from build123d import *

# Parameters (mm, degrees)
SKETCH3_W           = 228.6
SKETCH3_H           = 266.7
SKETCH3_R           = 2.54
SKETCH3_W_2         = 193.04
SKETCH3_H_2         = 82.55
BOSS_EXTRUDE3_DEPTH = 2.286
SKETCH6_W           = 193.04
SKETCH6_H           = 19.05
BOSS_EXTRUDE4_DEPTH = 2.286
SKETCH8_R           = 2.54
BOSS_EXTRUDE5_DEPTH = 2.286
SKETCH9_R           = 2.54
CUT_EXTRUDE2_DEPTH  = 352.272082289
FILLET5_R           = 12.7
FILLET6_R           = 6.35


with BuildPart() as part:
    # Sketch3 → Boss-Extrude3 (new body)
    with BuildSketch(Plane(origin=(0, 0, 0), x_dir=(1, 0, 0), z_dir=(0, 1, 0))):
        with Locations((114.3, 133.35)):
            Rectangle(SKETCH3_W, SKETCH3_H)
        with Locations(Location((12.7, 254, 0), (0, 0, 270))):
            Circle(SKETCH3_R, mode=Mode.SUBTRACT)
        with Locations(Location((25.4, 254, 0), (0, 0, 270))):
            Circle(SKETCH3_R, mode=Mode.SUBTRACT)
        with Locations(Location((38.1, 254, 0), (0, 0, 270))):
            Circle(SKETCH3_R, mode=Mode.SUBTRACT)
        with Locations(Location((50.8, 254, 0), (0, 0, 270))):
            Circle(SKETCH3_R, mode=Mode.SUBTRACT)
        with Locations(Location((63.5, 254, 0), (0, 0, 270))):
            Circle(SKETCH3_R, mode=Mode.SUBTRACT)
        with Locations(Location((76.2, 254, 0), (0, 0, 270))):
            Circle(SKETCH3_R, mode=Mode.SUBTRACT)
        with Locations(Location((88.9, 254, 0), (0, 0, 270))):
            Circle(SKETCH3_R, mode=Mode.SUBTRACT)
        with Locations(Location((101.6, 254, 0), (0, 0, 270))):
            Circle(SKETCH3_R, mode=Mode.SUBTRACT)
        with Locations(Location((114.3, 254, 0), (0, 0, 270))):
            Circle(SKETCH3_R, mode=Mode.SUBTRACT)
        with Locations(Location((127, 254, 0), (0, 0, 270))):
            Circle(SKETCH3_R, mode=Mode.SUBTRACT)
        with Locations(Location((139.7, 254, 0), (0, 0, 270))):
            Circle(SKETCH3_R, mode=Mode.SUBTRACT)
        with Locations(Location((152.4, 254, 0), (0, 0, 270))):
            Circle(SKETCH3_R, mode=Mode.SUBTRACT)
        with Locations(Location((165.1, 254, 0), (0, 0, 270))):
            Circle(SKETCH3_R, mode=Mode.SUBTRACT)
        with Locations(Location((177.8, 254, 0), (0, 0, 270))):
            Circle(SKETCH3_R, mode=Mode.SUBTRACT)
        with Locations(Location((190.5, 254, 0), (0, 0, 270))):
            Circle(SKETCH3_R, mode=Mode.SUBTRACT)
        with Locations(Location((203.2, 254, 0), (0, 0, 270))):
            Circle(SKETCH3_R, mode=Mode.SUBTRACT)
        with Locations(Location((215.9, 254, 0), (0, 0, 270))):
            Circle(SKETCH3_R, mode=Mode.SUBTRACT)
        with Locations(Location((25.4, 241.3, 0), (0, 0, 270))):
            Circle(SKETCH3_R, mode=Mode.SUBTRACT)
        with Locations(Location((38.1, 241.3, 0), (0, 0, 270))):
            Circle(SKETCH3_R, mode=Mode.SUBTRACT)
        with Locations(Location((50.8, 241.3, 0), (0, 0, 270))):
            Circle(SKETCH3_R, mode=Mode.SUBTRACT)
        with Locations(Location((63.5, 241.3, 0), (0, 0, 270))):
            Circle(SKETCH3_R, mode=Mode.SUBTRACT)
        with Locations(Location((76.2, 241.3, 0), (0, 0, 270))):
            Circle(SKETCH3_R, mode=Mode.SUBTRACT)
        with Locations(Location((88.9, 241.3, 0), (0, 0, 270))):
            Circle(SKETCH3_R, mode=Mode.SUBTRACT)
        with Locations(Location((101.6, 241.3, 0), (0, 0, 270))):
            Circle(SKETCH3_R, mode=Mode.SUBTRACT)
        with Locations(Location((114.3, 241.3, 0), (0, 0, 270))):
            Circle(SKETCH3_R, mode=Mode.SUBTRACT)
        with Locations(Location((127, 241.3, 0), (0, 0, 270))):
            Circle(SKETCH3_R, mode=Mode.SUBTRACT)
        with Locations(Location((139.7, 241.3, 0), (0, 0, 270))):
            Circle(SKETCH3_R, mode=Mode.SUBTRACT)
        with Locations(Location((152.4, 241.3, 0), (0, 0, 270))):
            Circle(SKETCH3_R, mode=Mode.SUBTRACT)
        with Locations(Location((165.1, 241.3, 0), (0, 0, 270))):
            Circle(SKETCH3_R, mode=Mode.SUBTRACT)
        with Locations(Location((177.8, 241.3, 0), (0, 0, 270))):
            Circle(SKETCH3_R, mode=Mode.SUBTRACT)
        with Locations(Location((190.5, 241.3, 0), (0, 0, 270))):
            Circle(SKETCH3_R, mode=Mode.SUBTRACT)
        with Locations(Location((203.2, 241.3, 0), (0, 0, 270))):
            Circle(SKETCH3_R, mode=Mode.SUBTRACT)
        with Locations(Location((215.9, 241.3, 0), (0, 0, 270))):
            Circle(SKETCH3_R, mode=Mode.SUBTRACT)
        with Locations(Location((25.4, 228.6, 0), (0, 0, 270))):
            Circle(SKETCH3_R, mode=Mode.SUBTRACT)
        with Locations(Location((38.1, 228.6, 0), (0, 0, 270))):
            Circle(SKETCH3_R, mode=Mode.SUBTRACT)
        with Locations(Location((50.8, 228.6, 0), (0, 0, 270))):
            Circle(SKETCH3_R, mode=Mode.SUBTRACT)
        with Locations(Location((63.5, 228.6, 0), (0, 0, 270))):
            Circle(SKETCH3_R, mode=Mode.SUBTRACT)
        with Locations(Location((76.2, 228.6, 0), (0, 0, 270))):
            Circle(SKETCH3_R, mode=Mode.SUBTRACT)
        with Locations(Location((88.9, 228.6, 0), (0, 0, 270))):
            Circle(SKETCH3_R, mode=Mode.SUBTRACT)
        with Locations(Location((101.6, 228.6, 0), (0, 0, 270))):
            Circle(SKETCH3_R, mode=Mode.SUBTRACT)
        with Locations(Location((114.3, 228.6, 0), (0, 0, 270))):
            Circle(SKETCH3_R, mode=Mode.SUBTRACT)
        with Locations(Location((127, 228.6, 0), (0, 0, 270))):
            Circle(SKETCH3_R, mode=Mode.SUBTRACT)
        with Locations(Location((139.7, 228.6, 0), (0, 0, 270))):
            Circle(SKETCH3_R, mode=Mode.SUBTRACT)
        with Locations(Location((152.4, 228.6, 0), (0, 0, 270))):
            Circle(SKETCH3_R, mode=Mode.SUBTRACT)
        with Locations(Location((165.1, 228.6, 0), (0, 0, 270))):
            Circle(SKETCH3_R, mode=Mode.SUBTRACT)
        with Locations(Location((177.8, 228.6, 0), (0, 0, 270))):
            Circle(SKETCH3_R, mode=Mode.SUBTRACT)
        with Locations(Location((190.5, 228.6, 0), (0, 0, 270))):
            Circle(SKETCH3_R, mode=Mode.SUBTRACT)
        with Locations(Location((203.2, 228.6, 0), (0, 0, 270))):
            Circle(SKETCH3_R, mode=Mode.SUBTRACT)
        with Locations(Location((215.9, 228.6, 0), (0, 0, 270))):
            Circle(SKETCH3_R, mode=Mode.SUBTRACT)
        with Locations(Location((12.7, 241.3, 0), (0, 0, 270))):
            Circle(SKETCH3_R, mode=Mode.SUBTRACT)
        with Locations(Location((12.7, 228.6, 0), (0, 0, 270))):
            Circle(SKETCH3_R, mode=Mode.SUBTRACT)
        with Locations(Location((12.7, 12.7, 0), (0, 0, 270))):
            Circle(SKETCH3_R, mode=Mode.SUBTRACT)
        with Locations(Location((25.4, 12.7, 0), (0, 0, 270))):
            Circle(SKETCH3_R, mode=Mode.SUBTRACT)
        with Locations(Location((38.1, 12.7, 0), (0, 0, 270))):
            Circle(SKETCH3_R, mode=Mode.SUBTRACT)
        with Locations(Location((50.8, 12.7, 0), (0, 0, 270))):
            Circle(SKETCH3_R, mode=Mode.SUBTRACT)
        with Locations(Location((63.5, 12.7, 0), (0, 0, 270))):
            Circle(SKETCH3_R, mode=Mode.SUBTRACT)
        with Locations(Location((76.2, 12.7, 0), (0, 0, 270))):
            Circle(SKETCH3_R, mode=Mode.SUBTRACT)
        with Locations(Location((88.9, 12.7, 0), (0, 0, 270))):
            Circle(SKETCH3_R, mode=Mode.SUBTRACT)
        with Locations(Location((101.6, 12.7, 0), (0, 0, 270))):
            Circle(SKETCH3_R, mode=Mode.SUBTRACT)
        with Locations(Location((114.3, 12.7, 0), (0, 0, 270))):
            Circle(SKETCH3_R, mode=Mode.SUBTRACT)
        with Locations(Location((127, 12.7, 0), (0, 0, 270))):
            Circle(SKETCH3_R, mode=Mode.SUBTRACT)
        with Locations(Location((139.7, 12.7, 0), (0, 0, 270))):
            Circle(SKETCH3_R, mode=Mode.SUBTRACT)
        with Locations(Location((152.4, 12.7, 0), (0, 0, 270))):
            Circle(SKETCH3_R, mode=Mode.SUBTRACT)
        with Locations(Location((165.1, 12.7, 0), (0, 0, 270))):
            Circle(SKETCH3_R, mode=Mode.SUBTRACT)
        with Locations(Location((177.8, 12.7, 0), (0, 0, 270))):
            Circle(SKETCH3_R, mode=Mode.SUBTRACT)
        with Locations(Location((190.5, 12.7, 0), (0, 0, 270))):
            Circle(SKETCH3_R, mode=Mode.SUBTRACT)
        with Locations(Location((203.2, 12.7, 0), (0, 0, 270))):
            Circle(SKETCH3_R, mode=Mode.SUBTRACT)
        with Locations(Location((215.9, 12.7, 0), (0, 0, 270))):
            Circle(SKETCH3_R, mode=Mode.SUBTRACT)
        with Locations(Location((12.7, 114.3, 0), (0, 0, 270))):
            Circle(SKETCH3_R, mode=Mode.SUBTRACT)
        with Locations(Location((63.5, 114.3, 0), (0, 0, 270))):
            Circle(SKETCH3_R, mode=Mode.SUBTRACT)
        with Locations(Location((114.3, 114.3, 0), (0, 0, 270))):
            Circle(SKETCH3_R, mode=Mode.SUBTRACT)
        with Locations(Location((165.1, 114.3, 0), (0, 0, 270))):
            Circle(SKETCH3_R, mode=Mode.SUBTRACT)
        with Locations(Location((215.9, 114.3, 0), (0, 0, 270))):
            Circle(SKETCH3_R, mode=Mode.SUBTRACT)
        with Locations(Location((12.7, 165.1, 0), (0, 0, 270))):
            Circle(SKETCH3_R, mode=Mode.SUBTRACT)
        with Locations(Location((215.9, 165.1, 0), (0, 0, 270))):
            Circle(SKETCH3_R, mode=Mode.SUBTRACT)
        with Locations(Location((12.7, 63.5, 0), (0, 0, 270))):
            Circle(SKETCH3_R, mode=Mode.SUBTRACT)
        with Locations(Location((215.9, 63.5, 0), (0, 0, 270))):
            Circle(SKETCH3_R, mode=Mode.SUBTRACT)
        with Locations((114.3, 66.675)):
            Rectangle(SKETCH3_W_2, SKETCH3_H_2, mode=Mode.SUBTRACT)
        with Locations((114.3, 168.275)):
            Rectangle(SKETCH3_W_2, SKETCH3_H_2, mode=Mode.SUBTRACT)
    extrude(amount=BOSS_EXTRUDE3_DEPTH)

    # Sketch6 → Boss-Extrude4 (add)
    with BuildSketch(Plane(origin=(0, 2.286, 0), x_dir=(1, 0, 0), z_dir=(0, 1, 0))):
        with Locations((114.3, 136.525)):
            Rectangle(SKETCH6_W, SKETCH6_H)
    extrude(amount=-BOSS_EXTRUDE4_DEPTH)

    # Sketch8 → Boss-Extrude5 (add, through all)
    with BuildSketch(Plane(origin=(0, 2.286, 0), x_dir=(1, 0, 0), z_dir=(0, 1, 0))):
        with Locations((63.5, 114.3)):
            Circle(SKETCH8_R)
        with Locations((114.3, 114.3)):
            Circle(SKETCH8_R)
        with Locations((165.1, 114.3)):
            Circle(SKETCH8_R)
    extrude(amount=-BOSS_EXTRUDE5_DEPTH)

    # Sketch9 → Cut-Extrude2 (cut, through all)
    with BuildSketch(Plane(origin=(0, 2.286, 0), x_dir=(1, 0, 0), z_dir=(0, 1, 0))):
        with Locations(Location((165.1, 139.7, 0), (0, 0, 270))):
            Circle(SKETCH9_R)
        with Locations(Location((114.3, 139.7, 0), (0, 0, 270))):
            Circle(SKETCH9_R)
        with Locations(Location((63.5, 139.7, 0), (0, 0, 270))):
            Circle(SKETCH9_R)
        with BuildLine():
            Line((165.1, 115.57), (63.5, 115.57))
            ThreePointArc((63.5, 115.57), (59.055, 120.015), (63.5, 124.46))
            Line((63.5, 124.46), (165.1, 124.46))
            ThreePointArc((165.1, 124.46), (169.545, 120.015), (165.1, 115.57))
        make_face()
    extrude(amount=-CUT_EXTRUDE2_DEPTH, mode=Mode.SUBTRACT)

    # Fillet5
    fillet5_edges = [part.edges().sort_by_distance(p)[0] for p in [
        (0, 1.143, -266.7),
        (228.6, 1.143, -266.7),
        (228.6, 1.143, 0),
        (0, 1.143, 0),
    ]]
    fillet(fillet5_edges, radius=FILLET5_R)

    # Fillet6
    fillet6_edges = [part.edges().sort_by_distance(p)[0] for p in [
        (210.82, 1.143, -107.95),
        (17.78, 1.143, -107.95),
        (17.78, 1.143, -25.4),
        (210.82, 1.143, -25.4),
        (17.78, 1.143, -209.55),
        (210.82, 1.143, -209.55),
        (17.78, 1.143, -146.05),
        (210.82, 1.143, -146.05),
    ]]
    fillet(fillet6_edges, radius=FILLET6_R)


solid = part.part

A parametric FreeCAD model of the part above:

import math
import FreeCAD as App
import Part
import Sketcher

V = App.Vector
Q = App.Units.Quantity


def edges_at(feature, points):
    """Names of the edges that pass closest to the given points."""
    edges = feature.Shape.Edges
    near = lambda p: min(range(len(edges)), key=lambda i: edges[i].distToShape(Part.Vertex(*p))[0])
    return sorted({f"Edge{near(p) + 1}" for p in points})


def add_polygon(sketch, points):
    """Adds a closed chain of lines whose ends are joined by coincident constraints."""
    first, n = sketch.GeometryCount, len(points)
    for a, b in zip(points, points[1:] + points[:1]):
        sketch.addGeometry(Part.LineSegment(App.Vector(*a, 0), App.Vector(*b, 0)), False)
    for i in range(n):
        sketch.addConstraint(Sketcher.Constraint("Coincident", first + i, 2, first + (i + 1) % n, 1))

doc = App.newDocument("Part")
params = doc.addObject("Spreadsheet::Sheet", "Params")
for row, (alias, value) in enumerate([
    ("sketch1_diameter", "0.2 in"),
    ("sketch1_width", "9 in"),
    ("sketch1_width2", "7.6 in"),
    ("sketch1_height", "10.5 in"),
    ("sketch1_height2", "3.25 in"),
    ("pad1_length", "0.09 in"),
    ("sketch2_width", "7.6 in"),
    ("sketch2_height", "0.75 in"),
    ("pad2_length", "0.09 in"),
    ("sketch3_diameter", "0.2 in"),
    ("pad3_length", "0.09 in"),
    ("sketch4_diameter", "0.2 in"),
    ("sketch4_width", "4 in"),
    ("sketch4_radius", "0.175 in"),
    ("fillet_radius", "0.5 in"),
    ("fillet2_radius", "0.25 in"),
], start=1):
    params.set(f"A{row}", alias)
    params.set(f"B{row}", "=" + value)
    params.setAlias(f"B{row}", alias)

body = doc.addObject("PartDesign::Body", "Body")

# Sketch on XZ plane
sketch1 = body.newObject("Sketcher::SketchObject", "Sketch")
sketch1.AttachmentSupport = (doc.getObject("XZ_Plane"), [""])
sketch1.MapMode = "FlatFace"
add_polygon(sketch1, [(0, -266.7), (0, 0), (228.6, 0), (228.6, -266.7)])  # lines 0-3
sketch1.addGeometry(Part.Circle(V(12.7, -12.7, 0), V(0, 0, 1), 2.54), False)  # 4
sketch1.addGeometry(Part.Circle(V(25.4, -12.7, 0), V(0, 0, 1), 2.54), False)  # 5
sketch1.addGeometry(Part.Circle(V(38.1, -12.7, 0), V(0, 0, 1), 2.54), False)  # 6
sketch1.addGeometry(Part.Circle(V(50.8, -12.7, 0), V(0, 0, 1), 2.54), False)  # 7
sketch1.addGeometry(Part.Circle(V(12.7, -63.5, 0), V(0, 0, 1), 2.54), False)  # 8
sketch1.addGeometry(Part.Circle(V(63.5, -12.7, 0), V(0, 0, 1), 2.54), False)  # 9
sketch1.addGeometry(Part.Circle(V(76.2, -12.7, 0), V(0, 0, 1), 2.54), False)  # 10
sketch1.addGeometry(Part.Circle(V(88.9, -12.7, 0), V(0, 0, 1), 2.54), False)  # 11
sketch1.addGeometry(Part.Circle(V(101.6, -12.7, 0), V(0, 0, 1), 2.54), False)  # 12
sketch1.addGeometry(Part.Circle(V(114.3, -12.7, 0), V(0, 0, 1), 2.54), False)  # 13
add_polygon(sketch1, [(210.82, -25.4), (17.78, -25.4), (17.78, -107.95), (210.82, -107.95)])  # lines 14-17
sketch1.addGeometry(Part.Circle(V(12.7, -114.3, 0), V(0, 0, 1), 2.54), False)  # 18
sketch1.addGeometry(Part.Circle(V(63.5, -114.3, 0), V(0, 0, 1), 2.54), False)  # 19
sketch1.addGeometry(Part.Circle(V(114.3, -114.3, 0), V(0, 0, 1), 2.54), False)  # 20
sketch1.addGeometry(Part.Circle(V(127, -12.7, 0), V(0, 0, 1), 2.54), False)  # 21
sketch1.addGeometry(Part.Circle(V(139.7, -12.7, 0), V(0, 0, 1), 2.54), False)  # 22
sketch1.addGeometry(Part.Circle(V(152.4, -12.7, 0), V(0, 0, 1), 2.54), False)  # 23
sketch1.addGeometry(Part.Circle(V(165.1, -12.7, 0), V(0, 0, 1), 2.54), False)  # 24
sketch1.addGeometry(Part.Circle(V(177.8, -12.7, 0), V(0, 0, 1), 2.54), False)  # 25
sketch1.addGeometry(Part.Circle(V(190.5, -12.7, 0), V(0, 0, 1), 2.54), False)  # 26
sketch1.addGeometry(Part.Circle(V(203.2, -12.7, 0), V(0, 0, 1), 2.54), False)  # 27
sketch1.addGeometry(Part.Circle(V(215.9, -12.7, 0), V(0, 0, 1), 2.54), False)  # 28
sketch1.addGeometry(Part.Circle(V(215.9, -63.5, 0), V(0, 0, 1), 2.54), False)  # 29
sketch1.addGeometry(Part.Circle(V(165.1, -114.3, 0), V(0, 0, 1), 2.54), False)  # 30
sketch1.addGeometry(Part.Circle(V(215.9, -114.3, 0), V(0, 0, 1), 2.54), False)  # 31
sketch1.addGeometry(Part.Circle(V(12.7, -165.1, 0), V(0, 0, 1), 2.54), False)  # 32
add_polygon(sketch1, [(210.82, -127), (17.78, -127), (17.78, -209.55), (210.82, -209.55)])  # lines 33-36
sketch1.addGeometry(Part.Circle(V(12.7, -228.6, 0), V(0, 0, 1), 2.54), False)  # 37
sketch1.addGeometry(Part.Circle(V(25.4, -228.6, 0), V(0, 0, 1), 2.54), False)  # 38
sketch1.addGeometry(Part.Circle(V(12.7, -241.3, 0), V(0, 0, 1), 2.54), False)  # 39
sketch1.addGeometry(Part.Circle(V(12.7, -254, 0), V(0, 0, 1), 2.54), False)  # 40
sketch1.addGeometry(Part.Circle(V(25.4, -241.3, 0), V(0, 0, 1), 2.54), False)  # 41
sketch1.addGeometry(Part.Circle(V(25.4, -254, 0), V(0, 0, 1), 2.54), False)  # 42
sketch1.addGeometry(Part.Circle(V(38.1, -228.6, 0), V(0, 0, 1), 2.54), False)  # 43
sketch1.addGeometry(Part.Circle(V(50.8, -228.6, 0), V(0, 0, 1), 2.54), False)  # 44
sketch1.addGeometry(Part.Circle(V(38.1, -241.3, 0), V(0, 0, 1), 2.54), False)  # 45
sketch1.addGeometry(Part.Circle(V(38.1, -254, 0), V(0, 0, 1), 2.54), False)  # 46
sketch1.addGeometry(Part.Circle(V(50.8, -241.3, 0), V(0, 0, 1), 2.54), False)  # 47
sketch1.addGeometry(Part.Circle(V(50.8, -254, 0), V(0, 0, 1), 2.54), False)  # 48
sketch1.addGeometry(Part.Circle(V(63.5, -228.6, 0), V(0, 0, 1), 2.54), False)  # 49
sketch1.addGeometry(Part.Circle(V(76.2, -228.6, 0), V(0, 0, 1), 2.54), False)  # 50
sketch1.addGeometry(Part.Circle(V(63.5, -241.3, 0), V(0, 0, 1), 2.54), False)  # 51
sketch1.addGeometry(Part.Circle(V(63.5, -254, 0), V(0, 0, 1), 2.54), False)  # 52
sketch1.addGeometry(Part.Circle(V(76.2, -241.3, 0), V(0, 0, 1), 2.54), False)  # 53
sketch1.addGeometry(Part.Circle(V(76.2, -254, 0), V(0, 0, 1), 2.54), False)  # 54
sketch1.addGeometry(Part.Circle(V(88.9, -228.6, 0), V(0, 0, 1), 2.54), False)  # 55
sketch1.addGeometry(Part.Circle(V(101.6, -228.6, 0), V(0, 0, 1), 2.54), False)  # 56
sketch1.addGeometry(Part.Circle(V(114.3, -228.6, 0), V(0, 0, 1), 2.54), False)  # 57
sketch1.addGeometry(Part.Circle(V(88.9, -241.3, 0), V(0, 0, 1), 2.54), False)  # 58
sketch1.addGeometry(Part.Circle(V(88.9, -254, 0), V(0, 0, 1), 2.54), False)  # 59
sketch1.addGeometry(Part.Circle(V(101.6, -241.3, 0), V(0, 0, 1), 2.54), False)  # 60
sketch1.addGeometry(Part.Circle(V(114.3, -241.3, 0), V(0, 0, 1), 2.54), False)  # 61
sketch1.addGeometry(Part.Circle(V(101.6, -254, 0), V(0, 0, 1), 2.54), False)  # 62
sketch1.addGeometry(Part.Circle(V(114.3, -254, 0), V(0, 0, 1), 2.54), False)  # 63
sketch1.addGeometry(Part.Circle(V(215.9, -165.1, 0), V(0, 0, 1), 2.54), False)  # 64
sketch1.addGeometry(Part.Circle(V(127, -228.6, 0), V(0, 0, 1), 2.54), False)  # 65
sketch1.addGeometry(Part.Circle(V(139.7, -228.6, 0), V(0, 0, 1), 2.54), False)  # 66
sketch1.addGeometry(Part.Circle(V(127, -241.3, 0), V(0, 0, 1), 2.54), False)  # 67
sketch1.addGeometry(Part.Circle(V(127, -254, 0), V(0, 0, 1), 2.54), False)  # 68
sketch1.addGeometry(Part.Circle(V(139.7, -241.3, 0), V(0, 0, 1), 2.54), False)  # 69
sketch1.addGeometry(Part.Circle(V(139.7, -254, 0), V(0, 0, 1), 2.54), False)  # 70
sketch1.addGeometry(Part.Circle(V(152.4, -228.6, 0), V(0, 0, 1), 2.54), False)  # 71
sketch1.addGeometry(Part.Circle(V(165.1, -228.6, 0), V(0, 0, 1), 2.54), False)  # 72
sketch1.addGeometry(Part.Circle(V(152.4, -241.3, 0), V(0, 0, 1), 2.54), False)  # 73
sketch1.addGeometry(Part.Circle(V(152.4, -254, 0), V(0, 0, 1), 2.54), False)  # 74
sketch1.addGeometry(Part.Circle(V(165.1, -241.3, 0), V(0, 0, 1), 2.54), False)  # 75
sketch1.addGeometry(Part.Circle(V(165.1, -254, 0), V(0, 0, 1), 2.54), False)  # 76
sketch1.addGeometry(Part.Circle(V(177.8, -228.6, 0), V(0, 0, 1), 2.54), False)  # 77
sketch1.addGeometry(Part.Circle(V(190.5, -228.6, 0), V(0, 0, 1), 2.54), False)  # 78
sketch1.addGeometry(Part.Circle(V(177.8, -241.3, 0), V(0, 0, 1), 2.54), False)  # 79
sketch1.addGeometry(Part.Circle(V(177.8, -254, 0), V(0, 0, 1), 2.54), False)  # 80
sketch1.addGeometry(Part.Circle(V(190.5, -241.3, 0), V(0, 0, 1), 2.54), False)  # 81
sketch1.addGeometry(Part.Circle(V(190.5, -254, 0), V(0, 0, 1), 2.54), False)  # 82
sketch1.addGeometry(Part.Circle(V(203.2, -228.6, 0), V(0, 0, 1), 2.54), False)  # 83
sketch1.addGeometry(Part.Circle(V(215.9, -228.6, 0), V(0, 0, 1), 2.54), False)  # 84
sketch1.addGeometry(Part.Circle(V(203.2, -241.3, 0), V(0, 0, 1), 2.54), False)  # 85
sketch1.addGeometry(Part.Circle(V(203.2, -254, 0), V(0, 0, 1), 2.54), False)  # 86
sketch1.addGeometry(Part.Circle(V(215.9, -241.3, 0), V(0, 0, 1), 2.54), False)  # 87
sketch1.addGeometry(Part.Circle(V(215.9, -254, 0), V(0, 0, 1), 2.54), False)  # 88
sketch1.addConstraint(Sketcher.Constraint("Vertical", 0))
sketch1.addConstraint(Sketcher.Constraint("Horizontal", 1))
sketch1.addConstraint(Sketcher.Constraint("Vertical", 2))
sketch1.addConstraint(Sketcher.Constraint("Horizontal", 3))
sketch1.addConstraint(Sketcher.Constraint("Horizontal", 14))
sketch1.addConstraint(Sketcher.Constraint("Vertical", 15))
sketch1.addConstraint(Sketcher.Constraint("Horizontal", 16))
sketch1.addConstraint(Sketcher.Constraint("Vertical", 17))
sketch1.addConstraint(Sketcher.Constraint("Horizontal", 33))
sketch1.addConstraint(Sketcher.Constraint("Vertical", 34))
sketch1.addConstraint(Sketcher.Constraint("Horizontal", 35))
sketch1.addConstraint(Sketcher.Constraint("Vertical", 36))
sketch1.addConstraint(Sketcher.Constraint("Coincident", 0, 2, -1, 1))
sketch1.addConstraint(Sketcher.Constraint("Equal", 4, 5))
sketch1.addConstraint(Sketcher.Constraint("Equal", 5, 6))
sketch1.addConstraint(Sketcher.Constraint("Equal", 6, 7))
sketch1.addConstraint(Sketcher.Constraint("Equal", 7, 8))
sketch1.addConstraint(Sketcher.Constraint("Equal", 8, 9))
sketch1.addConstraint(Sketcher.Constraint("Equal", 9, 10))
sketch1.addConstraint(Sketcher.Constraint("Equal", 10, 11))
sketch1.addConstraint(Sketcher.Constraint("Equal", 11, 12))
sketch1.addConstraint(Sketcher.Constraint("Equal", 12, 13))
sketch1.addConstraint(Sketcher.Constraint("Equal", 13, 18))
sketch1.addConstraint(Sketcher.Constraint("Equal", 18, 19))
sketch1.addConstraint(Sketcher.Constraint("Equal", 19, 20))
sketch1.addConstraint(Sketcher.Constraint("Equal", 20, 21))
sketch1.addConstraint(Sketcher.Constraint("Equal", 21, 22))
sketch1.addConstraint(Sketcher.Constraint("Equal", 22, 23))
sketch1.addConstraint(Sketcher.Constraint("Equal", 23, 24))
sketch1.addConstraint(Sketcher.Constraint("Equal", 24, 25))
sketch1.addConstraint(Sketcher.Constraint("Equal", 25, 26))
sketch1.addConstraint(Sketcher.Constraint("Equal", 26, 27))
sketch1.addConstraint(Sketcher.Constraint("Equal", 27, 28))
sketch1.addConstraint(Sketcher.Constraint("Equal", 28, 29))
sketch1.addConstraint(Sketcher.Constraint("Equal", 29, 30))
sketch1.addConstraint(Sketcher.Constraint("Equal", 30, 31))
sketch1.addConstraint(Sketcher.Constraint("Equal", 31, 32))
sketch1.addConstraint(Sketcher.Constraint("Equal", 32, 37))
sketch1.addConstraint(Sketcher.Constraint("Equal", 37, 38))
sketch1.addConstraint(Sketcher.Constraint("Equal", 38, 39))
sketch1.addConstraint(Sketcher.Constraint("Equal", 39, 40))
sketch1.addConstraint(Sketcher.Constraint("Equal", 40, 41))
sketch1.addConstraint(Sketcher.Constraint("Equal", 41, 42))
sketch1.addConstraint(Sketcher.Constraint("Equal", 42, 43))
sketch1.addConstraint(Sketcher.Constraint("Equal", 43, 44))
sketch1.addConstraint(Sketcher.Constraint("Equal", 44, 45))
sketch1.addConstraint(Sketcher.Constraint("Equal", 45, 46))
sketch1.addConstraint(Sketcher.Constraint("Equal", 46, 47))
sketch1.addConstraint(Sketcher.Constraint("Equal", 47, 48))
sketch1.addConstraint(Sketcher.Constraint("Equal", 48, 49))
sketch1.addConstraint(Sketcher.Constraint("Equal", 49, 50))
sketch1.addConstraint(Sketcher.Constraint("Equal", 50, 51))
sketch1.addConstraint(Sketcher.Constraint("Equal", 51, 52))
sketch1.addConstraint(Sketcher.Constraint("Equal", 52, 53))
sketch1.addConstraint(Sketcher.Constraint("Equal", 53, 54))
sketch1.addConstraint(Sketcher.Constraint("Equal", 54, 55))
sketch1.addConstraint(Sketcher.Constraint("Equal", 55, 56))
sketch1.addConstraint(Sketcher.Constraint("Equal", 56, 57))
sketch1.addConstraint(Sketcher.Constraint("Equal", 57, 58))
sketch1.addConstraint(Sketcher.Constraint("Equal", 58, 59))
sketch1.addConstraint(Sketcher.Constraint("Equal", 59, 60))
sketch1.addConstraint(Sketcher.Constraint("Equal", 60, 61))
sketch1.addConstraint(Sketcher.Constraint("Equal", 61, 62))
sketch1.addConstraint(Sketcher.Constraint("Equal", 62, 63))
sketch1.addConstraint(Sketcher.Constraint("Equal", 63, 64))
sketch1.addConstraint(Sketcher.Constraint("Equal", 64, 65))
sketch1.addConstraint(Sketcher.Constraint("Equal", 65, 66))
sketch1.addConstraint(Sketcher.Constraint("Equal", 66, 67))
sketch1.addConstraint(Sketcher.Constraint("Equal", 67, 68))
sketch1.addConstraint(Sketcher.Constraint("Equal", 68, 69))
sketch1.addConstraint(Sketcher.Constraint("Equal", 69, 70))
sketch1.addConstraint(Sketcher.Constraint("Equal", 70, 71))
sketch1.addConstraint(Sketcher.Constraint("Equal", 71, 72))
sketch1.addConstraint(Sketcher.Constraint("Equal", 72, 73))
sketch1.addConstraint(Sketcher.Constraint("Equal", 73, 74))
sketch1.addConstraint(Sketcher.Constraint("Equal", 74, 75))
sketch1.addConstraint(Sketcher.Constraint("Equal", 75, 76))
sketch1.addConstraint(Sketcher.Constraint("Equal", 76, 77))
sketch1.addConstraint(Sketcher.Constraint("Equal", 77, 78))
sketch1.addConstraint(Sketcher.Constraint("Equal", 78, 79))
sketch1.addConstraint(Sketcher.Constraint("Equal", 79, 80))
sketch1.addConstraint(Sketcher.Constraint("Equal", 80, 81))
sketch1.addConstraint(Sketcher.Constraint("Equal", 81, 82))
sketch1.addConstraint(Sketcher.Constraint("Equal", 82, 83))
sketch1.addConstraint(Sketcher.Constraint("Equal", 83, 84))
sketch1.addConstraint(Sketcher.Constraint("Equal", 84, 85))
sketch1.addConstraint(Sketcher.Constraint("Equal", 85, 86))
sketch1.addConstraint(Sketcher.Constraint("Equal", 86, 87))
sketch1.addConstraint(Sketcher.Constraint("Equal", 87, 88))
sketch1.addConstraint(Sketcher.Constraint("Horizontal", 4, 3, 5, 3))
sketch1.addConstraint(Sketcher.Constraint("Horizontal", 5, 3, 6, 3))
sketch1.addConstraint(Sketcher.Constraint("Horizontal", 6, 3, 7, 3))
sketch1.addConstraint(Sketcher.Constraint("Horizontal", 7, 3, 9, 3))
sketch1.addConstraint(Sketcher.Constraint("Horizontal", 9, 3, 10, 3))
sketch1.addConstraint(Sketcher.Constraint("Horizontal", 10, 3, 11, 3))
sketch1.addConstraint(Sketcher.Constraint("Horizontal", 11, 3, 12, 3))
sketch1.addConstraint(Sketcher.Constraint("Horizontal", 12, 3, 13, 3))
sketch1.addConstraint(Sketcher.Constraint("Horizontal", 18, 3, 19, 3))
sketch1.addConstraint(Sketcher.Constraint("Horizontal", 19, 3, 20, 3))
sketch1.addConstraint(Sketcher.Constraint("Horizontal", 13, 3, 21, 3))
sketch1.addConstraint(Sketcher.Constraint("Horizontal", 21, 3, 22, 3))
sketch1.addConstraint(Sketcher.Constraint("Horizontal", 22, 3, 23, 3))
sketch1.addConstraint(Sketcher.Constraint("Horizontal", 23, 3, 24, 3))
sketch1.addConstraint(Sketcher.Constraint("Horizontal", 24, 3, 25, 3))
sketch1.addConstraint(Sketcher.Constraint("Horizontal", 25, 3, 26, 3))
sketch1.addConstraint(Sketcher.Constraint("Horizontal", 26, 3, 27, 3))
sketch1.addConstraint(Sketcher.Constraint("Horizontal", 27, 3, 28, 3))
sketch1.addConstraint(Sketcher.Constraint("Horizontal", 8, 3, 29, 3))
sketch1.addConstraint(Sketcher.Constraint("Horizontal", 20, 3, 30, 3))
sketch1.addConstraint(Sketcher.Constraint("Horizontal", 30, 3, 31, 3))
sketch1.addConstraint(Sketcher.Constraint("Horizontal", 37, 3, 38, 3))
sketch1.addConstraint(Sketcher.Constraint("Horizontal", 39, 3, 41, 3))
sketch1.addConstraint(Sketcher.Constraint("Horizontal", 40, 3, 42, 3))
sketch1.addConstraint(Sketcher.Constraint("Horizontal", 38, 3, 43, 3))
sketch1.addConstraint(Sketcher.Constraint("Horizontal", 43, 3, 44, 3))
sketch1.addConstraint(Sketcher.Constraint("Horizontal", 41, 3, 45, 3))
sketch1.addConstraint(Sketcher.Constraint("Horizontal", 42, 3, 46, 3))
sketch1.addConstraint(Sketcher.Constraint("Horizontal", 45, 3, 47, 3))
sketch1.addConstraint(Sketcher.Constraint("Horizontal", 46, 3, 48, 3))
sketch1.addConstraint(Sketcher.Constraint("Horizontal", 44, 3, 49, 3))
sketch1.addConstraint(Sketcher.Constraint("Horizontal", 49, 3, 50, 3))
sketch1.addConstraint(Sketcher.Constraint("Horizontal", 47, 3, 51, 3))
sketch1.addConstraint(Sketcher.Constraint("Horizontal", 48, 3, 52, 3))
sketch1.addConstraint(Sketcher.Constraint("Horizontal", 51, 3, 53, 3))
sketch1.addConstraint(Sketcher.Constraint("Horizontal", 52, 3, 54, 3))
sketch1.addConstraint(Sketcher.Constraint("Horizontal", 50, 3, 55, 3))
sketch1.addConstraint(Sketcher.Constraint("Horizontal", 55, 3, 56, 3))
sketch1.addConstraint(Sketcher.Constraint("Horizontal", 56, 3, 57, 3))
sketch1.addConstraint(Sketcher.Constraint("Horizontal", 53, 3, 58, 3))
sketch1.addConstraint(Sketcher.Constraint("Horizontal", 54, 3, 59, 3))
sketch1.addConstraint(Sketcher.Constraint("Horizontal", 58, 3, 60, 3))
sketch1.addConstraint(Sketcher.Constraint("Horizontal", 60, 3, 61, 3))
sketch1.addConstraint(Sketcher.Constraint("Horizontal", 59, 3, 62, 3))
sketch1.addConstraint(Sketcher.Constraint("Horizontal", 62, 3, 63, 3))
sketch1.addConstraint(Sketcher.Constraint("Horizontal", 32, 3, 64, 3))
sketch1.addConstraint(Sketcher.Constraint("Horizontal", 57, 3, 65, 3))
sketch1.addConstraint(Sketcher.Constraint("Horizontal", 65, 3, 66, 3))
sketch1.addConstraint(Sketcher.Constraint("Horizontal", 61, 3, 67, 3))
sketch1.addConstraint(Sketcher.Constraint("Horizontal", 63, 3, 68, 3))
sketch1.addConstraint(Sketcher.Constraint("Horizontal", 67, 3, 69, 3))
sketch1.addConstraint(Sketcher.Constraint("Horizontal", 68, 3, 70, 3))
sketch1.addConstraint(Sketcher.Constraint("Horizontal", 66, 3, 71, 3))
sketch1.addConstraint(Sketcher.Constraint("Horizontal", 71, 3, 72, 3))
sketch1.addConstraint(Sketcher.Constraint("Horizontal", 69, 3, 73, 3))
sketch1.addConstraint(Sketcher.Constraint("Horizontal", 70, 3, 74, 3))
sketch1.addConstraint(Sketcher.Constraint("Horizontal", 73, 3, 75, 3))
sketch1.addConstraint(Sketcher.Constraint("Horizontal", 74, 3, 76, 3))
sketch1.addConstraint(Sketcher.Constraint("Horizontal", 72, 3, 77, 3))
sketch1.addConstraint(Sketcher.Constraint("Horizontal", 77, 3, 78, 3))
sketch1.addConstraint(Sketcher.Constraint("Horizontal", 75, 3, 79, 3))
sketch1.addConstraint(Sketcher.Constraint("Horizontal", 76, 3, 80, 3))
sketch1.addConstraint(Sketcher.Constraint("Horizontal", 79, 3, 81, 3))
sketch1.addConstraint(Sketcher.Constraint("Horizontal", 80, 3, 82, 3))
sketch1.addConstraint(Sketcher.Constraint("Horizontal", 78, 3, 83, 3))
sketch1.addConstraint(Sketcher.Constraint("Horizontal", 83, 3, 84, 3))
sketch1.addConstraint(Sketcher.Constraint("Horizontal", 81, 3, 85, 3))
sketch1.addConstraint(Sketcher.Constraint("Horizontal", 82, 3, 86, 3))
sketch1.addConstraint(Sketcher.Constraint("Horizontal", 85, 3, 87, 3))
sketch1.addConstraint(Sketcher.Constraint("Horizontal", 86, 3, 88, 3))
sketch1.addConstraint(Sketcher.Constraint("Vertical", 4, 3, 8, 3))
sketch1.addConstraint(Sketcher.Constraint("Vertical", 8, 3, 18, 3))
sketch1.addConstraint(Sketcher.Constraint("Vertical", 9, 3, 19, 3))
sketch1.addConstraint(Sketcher.Constraint("Vertical", 13, 3, 20, 3))
sketch1.addConstraint(Sketcher.Constraint("Vertical", 28, 3, 29, 3))
sketch1.addConstraint(Sketcher.Constraint("Vertical", 24, 3, 30, 3))
sketch1.addConstraint(Sketcher.Constraint("Vertical", 29, 3, 31, 3))
sketch1.addConstraint(Sketcher.Constraint("Vertical", 18, 3, 32, 3))
sketch1.addConstraint(Sketcher.Constraint("Vertical", 32, 3, 37, 3))
sketch1.addConstraint(Sketcher.Constraint("Vertical", 5, 3, 38, 3))
sketch1.addConstraint(Sketcher.Constraint("Vertical", 37, 3, 39, 3))
sketch1.addConstraint(Sketcher.Constraint("Vertical", 39, 3, 40, 3))
sketch1.addConstraint(Sketcher.Constraint("Vertical", 38, 3, 41, 3))
sketch1.addConstraint(Sketcher.Constraint("Vertical", 41, 3, 42, 3))
sketch1.addConstraint(Sketcher.Constraint("Vertical", 6, 3, 43, 3))
sketch1.addConstraint(Sketcher.Constraint("Vertical", 7, 3, 44, 3))
sketch1.addConstraint(Sketcher.Constraint("Vertical", 43, 3, 45, 3))
sketch1.addConstraint(Sketcher.Constraint("Vertical", 45, 3, 46, 3))
sketch1.addConstraint(Sketcher.Constraint("Vertical", 44, 3, 47, 3))
sketch1.addConstraint(Sketcher.Constraint("Vertical", 47, 3, 48, 3))
sketch1.addConstraint(Sketcher.Constraint("Vertical", 19, 3, 49, 3))
sketch1.addConstraint(Sketcher.Constraint("Vertical", 10, 3, 50, 3))
sketch1.addConstraint(Sketcher.Constraint("Vertical", 49, 3, 51, 3))
sketch1.addConstraint(Sketcher.Constraint("Vertical", 51, 3, 52, 3))
sketch1.addConstraint(Sketcher.Constraint("Vertical", 50, 3, 53, 3))
sketch1.addConstraint(Sketcher.Constraint("Vertical", 53, 3, 54, 3))
sketch1.addConstraint(Sketcher.Constraint("Vertical", 11, 3, 55, 3))
sketch1.addConstraint(Sketcher.Constraint("Vertical", 12, 3, 56, 3))
sketch1.addConstraint(Sketcher.Constraint("Vertical", 20, 3, 57, 3))
sketch1.addConstraint(Sketcher.Constraint("Vertical", 55, 3, 58, 3))
sketch1.addConstraint(Sketcher.Constraint("Vertical", 58, 3, 59, 3))
sketch1.addConstraint(Sketcher.Constraint("Vertical", 56, 3, 60, 3))
sketch1.addConstraint(Sketcher.Constraint("Vertical", 57, 3, 61, 3))
sketch1.addConstraint(Sketcher.Constraint("Vertical", 60, 3, 62, 3))
sketch1.addConstraint(Sketcher.Constraint("Vertical", 61, 3, 63, 3))
sketch1.addConstraint(Sketcher.Constraint("Vertical", 31, 3, 64, 3))
sketch1.addConstraint(Sketcher.Constraint("Vertical", 21, 3, 65, 3))
sketch1.addConstraint(Sketcher.Constraint("Vertical", 22, 3, 66, 3))
sketch1.addConstraint(Sketcher.Constraint("Vertical", 65, 3, 67, 3))
sketch1.addConstraint(Sketcher.Constraint("Vertical", 67, 3, 68, 3))
sketch1.addConstraint(Sketcher.Constraint("Vertical", 66, 3, 69, 3))
sketch1.addConstraint(Sketcher.Constraint("Vertical", 69, 3, 70, 3))
sketch1.addConstraint(Sketcher.Constraint("Vertical", 23, 3, 71, 3))
sketch1.addConstraint(Sketcher.Constraint("Vertical", 30, 3, 72, 3))
sketch1.addConstraint(Sketcher.Constraint("Vertical", 71, 3, 73, 3))
sketch1.addConstraint(Sketcher.Constraint("Vertical", 73, 3, 74, 3))
sketch1.addConstraint(Sketcher.Constraint("Vertical", 72, 3, 75, 3))
sketch1.addConstraint(Sketcher.Constraint("Vertical", 75, 3, 76, 3))
sketch1.addConstraint(Sketcher.Constraint("Vertical", 25, 3, 77, 3))
sketch1.addConstraint(Sketcher.Constraint("Vertical", 26, 3, 78, 3))
sketch1.addConstraint(Sketcher.Constraint("Vertical", 77, 3, 79, 3))
sketch1.addConstraint(Sketcher.Constraint("Vertical", 79, 3, 80, 3))
sketch1.addConstraint(Sketcher.Constraint("Vertical", 78, 3, 81, 3))
sketch1.addConstraint(Sketcher.Constraint("Vertical", 81, 3, 82, 3))
sketch1.addConstraint(Sketcher.Constraint("Vertical", 27, 3, 83, 3))
sketch1.addConstraint(Sketcher.Constraint("Vertical", 64, 3, 84, 3))
sketch1.addConstraint(Sketcher.Constraint("Vertical", 83, 3, 85, 3))
sketch1.addConstraint(Sketcher.Constraint("Vertical", 85, 3, 86, 3))
sketch1.addConstraint(Sketcher.Constraint("Vertical", 84, 3, 87, 3))
sketch1.addConstraint(Sketcher.Constraint("Vertical", 87, 3, 88, 3))
sketch1.addConstraint(Sketcher.Constraint("Vertical", 15, 2, 33, 2))
sketch1.addConstraint(Sketcher.Constraint("Vertical", 17, 2, 35, 2))
sketch1.addConstraint(Sketcher.Constraint("Equal", 17, 34))
sketch1.addConstraint(Sketcher.Constraint("Diameter", 4, Q("0.2 in")))
sketch1.addConstraint(Sketcher.Constraint("DistanceX", 1, 1, 1, 2, Q("9 in")))
sketch1.addConstraint(Sketcher.Constraint("DistanceX", 14, 2, 14, 1, Q("7.6 in")))
sketch1.addConstraint(Sketcher.Constraint("DistanceY", 0, 1, 0, 2, Q("10.5 in")))
sketch1.addConstraint(Sketcher.Constraint("DistanceX", -1, 1, 5, 3, Q("1 in")))
sketch1.addConstraint(Sketcher.Constraint("DistanceX", -1, 1, 7, 3, Q("2 in")))
sketch1.addConstraint(Sketcher.Constraint("DistanceX", -1, 1, 10, 3, Q("3 in")))
sketch1.addConstraint(Sketcher.Constraint("DistanceX", -1, 1, 12, 3, Q("4 in")))
sketch1.addConstraint(Sketcher.Constraint("DistanceX", -1, 1, 21, 3, Q("5 in")))
sketch1.addConstraint(Sketcher.Constraint("DistanceX", -1, 1, 23, 3, Q("6 in")))
sketch1.addConstraint(Sketcher.Constraint("DistanceX", -1, 1, 25, 3, Q("7 in")))
sketch1.addConstraint(Sketcher.Constraint("DistanceX", -1, 1, 27, 3, Q("8 in")))
sketch1.addConstraint(Sketcher.Constraint("DistanceY", 37, 3, -1, 1, Q("9 in")))
sketch1.addConstraint(Sketcher.Constraint("DistanceY", 40, 3, -1, 1, Q("10 in")))
sketch1.addConstraint(Sketcher.Constraint("DistanceY", 14, 2, -1, 1, Q("1 in")))
sketch1.addConstraint(Sketcher.Constraint("DistanceY", 33, 2, -1, 1, Q("5 in")))
sketch1.addConstraint(Sketcher.Constraint("DistanceY", 15, 2, 15, 1, Q("3.25 in")))
sketch1.addConstraint(Sketcher.Constraint("DistanceX", -1, 1, 4, 3, Q("0.5 in")))
sketch1.addConstraint(Sketcher.Constraint("DistanceY", 4, 3, -1, 1, Q("0.5 in")))
sketch1.addConstraint(Sketcher.Constraint("DistanceX", -1, 1, 6, 3, Q("1.5 in")))
sketch1.addConstraint(Sketcher.Constraint("DistanceY", 8, 3, -1, 1, Q("2.5 in")))
sketch1.addConstraint(Sketcher.Constraint("DistanceX", -1, 1, 9, 3, Q("2.5 in")))
sketch1.addConstraint(Sketcher.Constraint("DistanceX", -1, 1, 11, 3, Q("3.5 in")))
sketch1.addConstraint(Sketcher.Constraint("DistanceX", -1, 1, 13, 3, Q("4.5 in")))
sketch1.addConstraint(Sketcher.Constraint("DistanceY", 18, 3, -1, 1, Q("4.5 in")))
sketch1.addConstraint(Sketcher.Constraint("DistanceX", -1, 1, 22, 3, Q("5.5 in")))
sketch1.addConstraint(Sketcher.Constraint("DistanceX", -1, 1, 24, 3, Q("6.5 in")))
sketch1.addConstraint(Sketcher.Constraint("DistanceX", -1, 1, 26, 3, Q("7.5 in")))
sketch1.addConstraint(Sketcher.Constraint("DistanceX", -1, 1, 28, 3, Q("8.5 in")))
sketch1.addConstraint(Sketcher.Constraint("DistanceY", 32, 3, -1, 1, Q("6.5 in")))
sketch1.addConstraint(Sketcher.Constraint("DistanceY", 39, 3, -1, 1, Q("9.5 in")))
sketch1.addConstraint(Sketcher.Constraint("DistanceX", -1, 1, 14, 2, Q("0.7 in")))
sketch1.setExpression("Constraints[234]", "Params.sketch1_diameter")
sketch1.setExpression("Constraints[235]", "Params.sketch1_width")
sketch1.setExpression("Constraints[236]", "Params.sketch1_width2")
sketch1.setExpression("Constraints[237]", "Params.sketch1_height")
sketch1.setExpression("Constraints[250]", "Params.sketch1_height2")
pad1 = body.newObject("PartDesign::Pad", "Pad")
pad1.Profile = sketch1
pad1.setExpression("Length", "Params.pad1_length")
pad1.Reversed = True

# Sketch on XZ plane
sketch2 = body.newObject("Sketcher::SketchObject", "Sketch001")
sketch2.AttachmentSupport = (doc.getObject("XZ_Plane"), [""])
sketch2.MapMode = "FlatFace"
sketch2.AttachmentOffset = App.Placement(V(0, 0, -0.09 * 25.4), App.Rotation())
add_polygon(sketch2, [(17.78, -146.05), (17.78, -127), (210.82, -127), (210.82, -146.05)])  # lines 0-3
sketch2.addConstraint(Sketcher.Constraint("Vertical", 0))
sketch2.addConstraint(Sketcher.Constraint("Horizontal", 1))
sketch2.addConstraint(Sketcher.Constraint("Vertical", 2))
sketch2.addConstraint(Sketcher.Constraint("Horizontal", 3))
sketch2.addConstraint(Sketcher.Constraint("DistanceX", 1, 1, 1, 2, Q("7.6 in")))
sketch2.addConstraint(Sketcher.Constraint("DistanceY", 0, 2, -1, 1, Q("5 in")))
sketch2.addConstraint(Sketcher.Constraint("DistanceY", 0, 1, 0, 2, Q("0.75 in")))
sketch2.addConstraint(Sketcher.Constraint("DistanceX", -1, 1, 0, 2, Q("0.7 in")))
sketch2.setExpression("Constraints[8]", "Params.sketch2_width")
sketch2.setExpression("Constraints[10]", "Params.sketch2_height")
pad2 = body.newObject("PartDesign::Pad", "Pad001")
pad2.Profile = sketch2
pad2.setExpression("Length", "Params.pad2_length")

# Sketch on XZ plane
sketch3 = body.newObject("Sketcher::SketchObject", "Sketch002")
sketch3.AttachmentSupport = (doc.getObject("XZ_Plane"), [""])
sketch3.MapMode = "FlatFace"
sketch3.AttachmentOffset = App.Placement(V(0, 0, -0.09 * 25.4), App.Rotation())
sketch3.addGeometry(Part.Circle(V(63.5, -114.3, 0), V(0, 0, 1), 2.54), False)
sketch3.addGeometry(Part.Circle(V(114.3, -114.3, 0), V(0, 0, 1), 2.54), False)
sketch3.addGeometry(Part.Circle(V(165.1, -114.3, 0), V(0, 0, 1), 2.54), False)
sketch3.addConstraint(Sketcher.Constraint("Equal", 0, 1))
sketch3.addConstraint(Sketcher.Constraint("Equal", 1, 2))
sketch3.addConstraint(Sketcher.Constraint("Horizontal", 0, 3, 1, 3))
sketch3.addConstraint(Sketcher.Constraint("Horizontal", 1, 3, 2, 3))
sketch3.addConstraint(Sketcher.Constraint("Diameter", 0, Q("0.2 in")))
sketch3.addConstraint(Sketcher.Constraint("DistanceX", 0, 3, 1, 3, Q("2 in")))
sketch3.addConstraint(Sketcher.Constraint("DistanceX", 1, 3, 2, 3, Q("2 in")))
sketch3.addConstraint(Sketcher.Constraint("DistanceX", -1, 1, 0, 3, Q("2.5 in")))
sketch3.addConstraint(Sketcher.Constraint("DistanceY", 0, 3, -1, 1, Q("4.5 in")))
sketch3.setExpression("Constraints[4]", "Params.sketch3_diameter")
pad3 = body.newObject("PartDesign::Pad", "Pad002")
pad3.Profile = sketch3
pad3.setExpression("Length", "Params.pad3_length")

# Sketch on XZ plane
sketch4 = body.newObject("Sketcher::SketchObject", "Sketch003")
sketch4.AttachmentSupport = (doc.getObject("XZ_Plane"), [""])
sketch4.MapMode = "FlatFace"
sketch4.AttachmentOffset = App.Placement(V(0, 0, -0.09 * 25.4), App.Rotation())
sketch4.addGeometry(Part.Circle(V(165.1, -139.7, 0), V(0, 0, 1), 2.54), False)
sketch4.addGeometry(Part.Circle(V(114.3, -139.7, 0), V(0, 0, 1), 2.54), False)
sketch4.addGeometry(Part.Circle(V(63.5, -139.7, 0), V(0, 0, 1), 2.54), False)
sketch4.addGeometry(Part.LineSegment(V(63.5, -115.57, 0), V(165.1, -115.57, 0)), False)
sketch4.addGeometry(Part.ArcOfCircle(Part.Circle(V(165.1, -120.015, 0), V(0, 0, 1), 4.445), math.radians(-90), math.radians(90)), False)
sketch4.addGeometry(Part.LineSegment(V(165.1, -124.46, 0), V(63.5, -124.46, 0)), False)
sketch4.addGeometry(Part.ArcOfCircle(Part.Circle(V(63.5, -120.015, 0), V(0, 0, 1), 4.445), math.radians(90), math.radians(270)), False)
sketch4.addConstraint(Sketcher.Constraint("Tangent", 3, 2, 4, 2))
sketch4.addConstraint(Sketcher.Constraint("Tangent", 4, 1, 5, 1))
sketch4.addConstraint(Sketcher.Constraint("Tangent", 5, 2, 6, 2))
sketch4.addConstraint(Sketcher.Constraint("Tangent", 6, 1, 3, 1))
sketch4.addConstraint(Sketcher.Constraint("Horizontal", 3))
sketch4.addConstraint(Sketcher.Constraint("Horizontal", 5))
sketch4.addConstraint(Sketcher.Constraint("Equal", 0, 1))
sketch4.addConstraint(Sketcher.Constraint("Equal", 1, 2))
sketch4.addConstraint(Sketcher.Constraint("Horizontal", 0, 3, 1, 3))
sketch4.addConstraint(Sketcher.Constraint("Horizontal", 1, 3, 2, 3))
sketch4.addConstraint(Sketcher.Constraint("Vertical", 0, 3, 4, 3))
sketch4.addConstraint(Sketcher.Constraint("Vertical", 2, 3, 6, 3))
sketch4.addConstraint(Sketcher.Constraint("Diameter", 0, Q("0.2 in")))
sketch4.addConstraint(Sketcher.Constraint("DistanceX", 3, 1, 3, 2, Q("4 in")))
sketch4.addConstraint(Sketcher.Constraint("Radius", 4, Q("0.175 in")))
sketch4.addConstraint(Sketcher.Constraint("DistanceX", 1, 3, 0, 3, Q("2 in")))
sketch4.addConstraint(Sketcher.Constraint("DistanceX", -1, 1, 0, 3, Q("6.5 in")))
sketch4.addConstraint(Sketcher.Constraint("DistanceY", 0, 3, -1, 1, Q("5.5 in")))
sketch4.addConstraint(Sketcher.Constraint("DistanceY", 4, 1, -1, 1, Q("4.9 in")))
sketch4.setExpression("Constraints[12]", "Params.sketch4_diameter")
sketch4.setExpression("Constraints[13]", "Params.sketch4_width")
sketch4.setExpression("Constraints[14]", "Params.sketch4_radius")
pocket1 = body.newObject("PartDesign::Pocket", "Pocket")
pocket1.Profile = sketch4
pocket1.Type = "ThroughAll"
pocket1.Reversed = True
doc.recompute()

fillet = body.newObject("PartDesign::Fillet", "Fillet")
fillet.Base = (pocket1, edges_at(pocket1, [
    (0, 1.143, -266.7),
    (228.6, 1.143, -266.7),
    (228.6, 1.143, 0),
    (0, 1.143, 0),
]))
fillet.setExpression("Radius", "Params.fillet_radius")
doc.recompute()

fillet2 = body.newObject("PartDesign::Fillet", "Fillet001")
fillet2.Base = (fillet, edges_at(fillet, [
    (210.82, 1.143, -107.95),
    (17.78, 1.143, -107.95),
    (17.78, 1.143, -25.4),
    (210.82, 1.143, -25.4),
    (17.78, 1.143, -209.55),
    (210.82, 1.143, -209.55),
    (17.78, 1.143, -146.05),
    (210.82, 1.143, -146.05),
]))
fillet2.setExpression("Radius", "Params.fillet2_radius")

doc.recompute()
